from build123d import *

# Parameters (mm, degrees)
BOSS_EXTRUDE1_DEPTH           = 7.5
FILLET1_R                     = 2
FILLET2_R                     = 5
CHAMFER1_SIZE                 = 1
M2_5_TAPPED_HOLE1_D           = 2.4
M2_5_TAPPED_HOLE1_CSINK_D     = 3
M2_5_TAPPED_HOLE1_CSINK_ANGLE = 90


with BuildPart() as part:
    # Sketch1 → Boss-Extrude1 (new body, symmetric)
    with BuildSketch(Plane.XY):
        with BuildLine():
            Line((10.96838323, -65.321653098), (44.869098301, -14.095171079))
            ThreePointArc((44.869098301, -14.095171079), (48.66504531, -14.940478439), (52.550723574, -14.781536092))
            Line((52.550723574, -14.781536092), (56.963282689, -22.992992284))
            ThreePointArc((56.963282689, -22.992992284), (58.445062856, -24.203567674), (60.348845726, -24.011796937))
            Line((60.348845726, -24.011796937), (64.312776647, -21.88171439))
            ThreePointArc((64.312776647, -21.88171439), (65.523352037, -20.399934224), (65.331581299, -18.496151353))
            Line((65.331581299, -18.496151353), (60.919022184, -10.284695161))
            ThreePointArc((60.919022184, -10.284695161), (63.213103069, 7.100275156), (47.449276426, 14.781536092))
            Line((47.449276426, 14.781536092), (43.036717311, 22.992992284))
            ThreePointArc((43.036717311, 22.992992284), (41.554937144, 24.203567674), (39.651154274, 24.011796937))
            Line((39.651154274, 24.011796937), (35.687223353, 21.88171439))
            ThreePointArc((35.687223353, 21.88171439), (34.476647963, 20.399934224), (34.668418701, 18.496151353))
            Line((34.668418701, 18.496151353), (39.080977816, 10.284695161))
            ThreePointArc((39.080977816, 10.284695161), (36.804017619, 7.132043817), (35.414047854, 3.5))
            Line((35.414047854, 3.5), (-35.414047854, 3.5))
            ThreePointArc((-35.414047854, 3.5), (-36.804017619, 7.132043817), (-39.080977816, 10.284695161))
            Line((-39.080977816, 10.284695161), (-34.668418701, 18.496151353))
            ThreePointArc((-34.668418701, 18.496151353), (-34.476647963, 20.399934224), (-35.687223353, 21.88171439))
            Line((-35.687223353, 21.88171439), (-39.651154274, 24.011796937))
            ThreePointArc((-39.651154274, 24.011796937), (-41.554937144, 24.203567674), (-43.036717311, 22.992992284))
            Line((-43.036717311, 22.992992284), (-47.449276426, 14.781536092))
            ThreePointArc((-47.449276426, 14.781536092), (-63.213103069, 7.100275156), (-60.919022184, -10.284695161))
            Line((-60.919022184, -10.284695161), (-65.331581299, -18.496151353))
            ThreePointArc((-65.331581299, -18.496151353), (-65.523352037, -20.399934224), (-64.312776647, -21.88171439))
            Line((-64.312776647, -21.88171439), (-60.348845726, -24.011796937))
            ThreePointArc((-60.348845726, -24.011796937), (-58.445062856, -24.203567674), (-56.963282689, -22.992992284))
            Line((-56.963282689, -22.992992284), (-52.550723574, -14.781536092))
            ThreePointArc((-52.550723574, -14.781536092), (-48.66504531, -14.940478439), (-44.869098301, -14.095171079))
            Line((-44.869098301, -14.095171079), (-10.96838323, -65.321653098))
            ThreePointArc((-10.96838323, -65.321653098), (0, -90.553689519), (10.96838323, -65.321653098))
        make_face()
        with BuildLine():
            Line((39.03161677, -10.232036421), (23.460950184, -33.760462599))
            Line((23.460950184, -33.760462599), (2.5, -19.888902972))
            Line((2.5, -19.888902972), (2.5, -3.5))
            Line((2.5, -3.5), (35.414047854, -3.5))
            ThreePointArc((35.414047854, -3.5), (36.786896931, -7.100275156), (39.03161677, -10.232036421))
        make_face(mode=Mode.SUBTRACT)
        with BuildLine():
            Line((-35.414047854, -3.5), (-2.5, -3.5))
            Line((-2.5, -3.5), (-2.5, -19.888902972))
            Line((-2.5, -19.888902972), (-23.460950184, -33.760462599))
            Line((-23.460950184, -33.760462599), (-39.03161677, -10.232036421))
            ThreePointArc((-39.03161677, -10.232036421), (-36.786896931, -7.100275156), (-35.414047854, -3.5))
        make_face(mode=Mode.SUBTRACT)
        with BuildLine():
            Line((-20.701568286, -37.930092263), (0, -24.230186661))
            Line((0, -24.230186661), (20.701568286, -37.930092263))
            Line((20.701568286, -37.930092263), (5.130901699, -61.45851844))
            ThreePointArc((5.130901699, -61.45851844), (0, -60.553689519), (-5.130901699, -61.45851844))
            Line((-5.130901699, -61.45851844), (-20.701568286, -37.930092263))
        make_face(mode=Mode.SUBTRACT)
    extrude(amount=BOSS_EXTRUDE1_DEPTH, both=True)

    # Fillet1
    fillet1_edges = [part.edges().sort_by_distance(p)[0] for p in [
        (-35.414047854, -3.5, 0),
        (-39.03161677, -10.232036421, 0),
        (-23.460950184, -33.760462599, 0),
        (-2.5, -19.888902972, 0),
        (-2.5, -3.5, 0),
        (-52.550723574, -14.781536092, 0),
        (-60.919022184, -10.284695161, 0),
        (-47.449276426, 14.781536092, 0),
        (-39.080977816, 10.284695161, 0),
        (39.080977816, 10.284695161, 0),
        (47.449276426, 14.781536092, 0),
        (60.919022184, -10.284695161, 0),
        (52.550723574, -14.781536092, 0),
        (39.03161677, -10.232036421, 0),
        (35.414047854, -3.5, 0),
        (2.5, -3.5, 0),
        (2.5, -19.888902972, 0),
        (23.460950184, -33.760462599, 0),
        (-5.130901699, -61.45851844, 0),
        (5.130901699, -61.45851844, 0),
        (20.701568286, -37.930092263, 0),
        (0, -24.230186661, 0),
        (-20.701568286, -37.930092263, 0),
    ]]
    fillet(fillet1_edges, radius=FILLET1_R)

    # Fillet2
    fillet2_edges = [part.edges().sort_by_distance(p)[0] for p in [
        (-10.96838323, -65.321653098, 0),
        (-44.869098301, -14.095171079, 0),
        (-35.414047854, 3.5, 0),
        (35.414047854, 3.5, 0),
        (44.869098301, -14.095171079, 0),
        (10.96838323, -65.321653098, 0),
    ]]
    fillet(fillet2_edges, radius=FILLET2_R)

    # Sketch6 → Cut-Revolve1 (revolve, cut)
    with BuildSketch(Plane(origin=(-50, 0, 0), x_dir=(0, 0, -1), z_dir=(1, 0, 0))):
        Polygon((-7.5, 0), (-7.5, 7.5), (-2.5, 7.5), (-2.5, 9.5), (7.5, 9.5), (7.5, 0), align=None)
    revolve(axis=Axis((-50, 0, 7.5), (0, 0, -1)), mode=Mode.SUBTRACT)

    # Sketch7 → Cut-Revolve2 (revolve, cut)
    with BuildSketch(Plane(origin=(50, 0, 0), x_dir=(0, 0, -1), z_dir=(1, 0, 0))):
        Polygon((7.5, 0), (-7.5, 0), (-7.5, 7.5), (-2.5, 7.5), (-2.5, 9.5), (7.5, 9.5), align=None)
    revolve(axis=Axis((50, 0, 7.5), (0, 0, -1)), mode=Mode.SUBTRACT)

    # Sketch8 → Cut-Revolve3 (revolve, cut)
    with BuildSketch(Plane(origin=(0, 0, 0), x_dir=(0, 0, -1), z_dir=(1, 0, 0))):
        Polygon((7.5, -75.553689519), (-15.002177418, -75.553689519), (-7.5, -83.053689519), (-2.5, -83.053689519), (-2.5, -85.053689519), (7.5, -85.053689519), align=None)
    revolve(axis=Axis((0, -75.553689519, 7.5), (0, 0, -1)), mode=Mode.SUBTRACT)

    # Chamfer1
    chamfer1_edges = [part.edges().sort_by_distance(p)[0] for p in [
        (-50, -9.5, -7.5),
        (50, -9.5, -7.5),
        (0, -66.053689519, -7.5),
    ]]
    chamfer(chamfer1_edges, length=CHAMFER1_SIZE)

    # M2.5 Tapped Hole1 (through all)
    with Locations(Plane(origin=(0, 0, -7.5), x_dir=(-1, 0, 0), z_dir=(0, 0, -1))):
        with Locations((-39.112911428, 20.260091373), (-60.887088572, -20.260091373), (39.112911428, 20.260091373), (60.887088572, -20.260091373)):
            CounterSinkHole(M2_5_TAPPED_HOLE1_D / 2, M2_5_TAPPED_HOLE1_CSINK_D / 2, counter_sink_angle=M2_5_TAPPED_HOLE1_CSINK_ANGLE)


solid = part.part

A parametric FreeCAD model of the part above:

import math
import FreeCAD as App
import Part
import Sketcher

V = App.Vector
Q = App.Units.Quantity


def edges_at(feature, points):
    """Names of the edges that pass closest to the given points."""
    edges = feature.Shape.Edges
    near = lambda p: min(range(len(edges)), key=lambda i: edges[i].distToShape(Part.Vertex(*p))[0])
    return sorted({f"Edge{near(p) + 1}" for p in points})

doc = App.newDocument("Part")
body = doc.addObject("PartDesign::Body", "Body")

sketch1 = body.newObject("Sketcher::SketchObject", "Sketch")
sketch1.AttachmentSupport = (doc.getObject("XY_Plane"), [""])
sketch1.MapMode = "FlatFace"
sketch1.addGeometry(Part.LineSegment(V(11, -65.3, 0), V(44.9, -14.1, 0)), False)
sketch1.addGeometry(Part.ArcOfCircle(Part.Circle(V(50, 0, 0), V(0, 0, 1), 15), math.radians(-110), math.radians(-80)), False)
sketch1.addGeometry(Part.LineSegment(V(52.6, -14.8, 0), V(57, -23, 0)), False)
sketch1.addGeometry(Part.ArcOfCircle(Part.Circle(V(59.2, -21.8, 0), V(0, 0, 1), 2.5), math.radians(-152), math.radians(-62)), False)
sketch1.addGeometry(Part.LineSegment(V(60.3, -24, 0), V(64.3, -21.9, 0)), False)
sketch1.addGeometry(Part.ArcOfCircle(Part.Circle(V(63.1, -19.7, 0), V(0, 0, 1), 2.5), math.radians(-62), math.radians(28)), False)
sketch1.addGeometry(Part.LineSegment(V(65.3, -18.5, 0), V(60.9, -10.3, 0)), False)
sketch1.addGeometry(Part.ArcOfCircle(Part.Circle(V(50, 0, 0), V(0, 0, 1), 15), math.radians(-43), math.radians(100)), False)
sketch1.addGeometry(Part.LineSegment(V(47.4, 14.8, 0), V(43, 23, 0)), False)
sketch1.addGeometry(Part.ArcOfCircle(Part.Circle(V(40.8, 21.8, 0), V(0, 0, 1), 2.5), math.radians(28), math.radians(118)), False)
sketch1.addGeometry(Part.LineSegment(V(39.7, 24, 0), V(35.7, 21.9, 0)), False)
sketch1.addGeometry(Part.ArcOfCircle(Part.Circle(V(36.9, 19.7, 0), V(0, 0, 1), 2.5), math.radians(118), math.radians(208)), False)
sketch1.addGeometry(Part.LineSegment(V(34.7, 18.5, 0), V(39.1, 10.3, 0)), False)
sketch1.addGeometry(Part.ArcOfCircle(Part.Circle(V(50, 0, 0), V(0, 0, 1), 15), math.radians(137), math.radians(167)), False)
sketch1.addGeometry(Part.LineSegment(V(35.4, 3.5, 0), V(-35.4, 3.5, 0)), False)
sketch1.addGeometry(Part.ArcOfCircle(Part.Circle(V(-50, 0, 0), V(0, 0, 1), 15), math.radians(13), math.radians(43)), False)
sketch1.addGeometry(Part.LineSegment(V(-39.1, 10.3, 0), V(-34.7, 18.5, 0)), False)
sketch1.addGeometry(Part.ArcOfCircle(Part.Circle(V(-36.9, 19.7, 0), V(0, 0, 1), 2.5), math.radians(-28), math.radians(62)), False)
sketch1.addGeometry(Part.LineSegment(V(-35.7, 21.9, 0), V(-39.7, 24, 0)), False)
sketch1.addGeometry(Part.ArcOfCircle(Part.Circle(V(-40.8, 21.8, 0), V(0, 0, 1), 2.5), math.radians(62), math.radians(152)), False)
sketch1.addGeometry(Part.LineSegment(V(-43, 23, 0), V(-47.4, 14.8, 0)), False)
sketch1.addGeometry(Part.ArcOfCircle(Part.Circle(V(-50, 0, 0), V(0, 0, 1), 15), math.radians(80), math.radians(223)), False)
sketch1.addGeometry(Part.LineSegment(V(-60.9, -10.3, 0), V(-65.3, -18.5, 0)), False)
sketch1.addGeometry(Part.ArcOfCircle(Part.Circle(V(-63.1, -19.7, 0), V(0, 0, 1), 2.5), math.radians(152), math.radians(242)), False)
sketch1.addGeometry(Part.LineSegment(V(-64.3, -21.9, 0), V(-60.3, -24, 0)), False)
sketch1.addGeometry(Part.ArcOfCircle(Part.Circle(V(-59.2, -21.8, 0), V(0, 0, 1), 2.5), math.radians(-118), math.radians(-28)), False)
sketch1.addGeometry(Part.LineSegment(V(-57, -23, 0), V(-52.6, -14.8, 0)), False)
sketch1.addGeometry(Part.ArcOfCircle(Part.Circle(V(-50, 0, 0), V(0, 0, 1), 15), math.radians(-100), math.radians(-70)), False)
sketch1.addGeometry(Part.LineSegment(V(-44.9, -14.1, 0), V(-11, -65.3, 0)), False)
sketch1.addGeometry(Part.ArcOfCircle(Part.Circle(V(0, -75.6, 0), V(0, 0, 1), 15), math.radians(137), math.radians(403)), False)
sketch1.addGeometry(Part.LineSegment(V(-5.1, -61.5, 0), V(-20.7, -37.9, 0)), False)
sketch1.addGeometry(Part.LineSegment(V(-20.7, -37.9, 0), V(0, -24.2, 0)), False)
sketch1.addGeometry(Part.LineSegment(V(0, -24.2, 0), V(20.7, -37.9, 0)), False)
sketch1.addGeometry(Part.LineSegment(V(20.7, -37.9, 0), V(5.1, -61.5, 0)), False)
sketch1.addGeometry(Part.ArcOfCircle(Part.Circle(V(0, -75.6, 0), V(0, 0, 1), 15), math.radians(70), math.radians(110)), False)
sketch1.addGeometry(Part.ArcOfCircle(Part.Circle(V(-50, 0, 0), V(0, 0, 1), 15), math.radians(-43), math.radians(-13)), False)
sketch1.addGeometry(Part.LineSegment(V(-35.4, -3.5, 0), V(-2.5, -3.5, 0)), False)
sketch1.addGeometry(Part.LineSegment(V(-2.5, -3.5, 0), V(-2.5, -19.9, 0)), False)
sketch1.addGeometry(Part.LineSegment(V(-2.5, -19.9, 0), V(-23.5, -33.8, 0)), False)
sketch1.addGeometry(Part.LineSegment(V(-23.5, -33.8, 0), V(-39, -10.2, 0)), False)
sketch1.addGeometry(Part.ArcOfCircle(Part.Circle(V(50, 0, 0), V(0, 0, 1), 15), math.radians(-167), math.radians(-137)), False)
sketch1.addGeometry(Part.LineSegment(V(39, -10.2, 0), V(23.5, -33.8, 0)), False)
sketch1.addGeometry(Part.LineSegment(V(23.5, -33.8, 0), V(2.5, -19.9, 0)), False)
sketch1.addGeometry(Part.LineSegment(V(2.5, -19.9, 0), V(2.5, -3.5, 0)), False)
sketch1.addGeometry(Part.LineSegment(V(2.5, -3.5, 0), V(35.4, -3.5, 0)), False)
sketch1.addConstraint(Sketcher.Constraint("Coincident", 0, 2, 1, 1))
sketch1.addConstraint(Sketcher.Constraint("Coincident", 1, 2, 2, 1))
sketch1.addConstraint(Sketcher.Constraint("Tangent", 2, 2, 3, 1))
sketch1.addConstraint(Sketcher.Constraint("Tangent", 3, 2, 4, 1))
sketch1.addConstraint(Sketcher.Constraint("Tangent", 4, 2, 5, 1))
sketch1.addConstraint(Sketcher.Constraint("Tangent", 5, 2, 6, 1))
sketch1.addConstraint(Sketcher.Constraint("Coincident", 6, 2, 7, 1))
sketch1.addConstraint(Sketcher.Constraint("Coincident", 7, 2, 8, 1))
sketch1.addConstraint(Sketcher.Constraint("Tangent", 8, 2, 9, 1))
sketch1.addConstraint(Sketcher.Constraint("Tangent", 9, 2, 10, 1))
sketch1.addConstraint(Sketcher.Constraint("Tangent", 10, 2, 11, 1))
sketch1.addConstraint(Sketcher.Constraint("Tangent", 11, 2, 12, 1))
sketch1.addConstraint(Sketcher.Constraint("Coincident", 12, 2, 13, 1))
sketch1.addConstraint(Sketcher.Constraint("Coincident", 13, 2, 14, 1))
sketch1.addConstraint(Sketcher.Constraint("Coincident", 14, 2, 15, 1))
sketch1.addConstraint(Sketcher.Constraint("Coincident", 15, 2, 16, 1))
sketch1.addConstraint(Sketcher.Constraint("Tangent", 16, 2, 17, 1))
sketch1.addConstraint(Sketcher.Constraint("Tangent", 17, 2, 18, 1))
sketch1.addConstraint(Sketcher.Constraint("Tangent", 18, 2, 19, 1))
sketch1.addConstraint(Sketcher.Constraint("Tangent", 19, 2, 20, 1))
sketch1.addConstraint(Sketcher.Constraint("Coincident", 20, 2, 21, 1))
sketch1.addConstraint(Sketcher.Constraint("Coincident", 21, 2, 22, 1))
sketch1.addConstraint(Sketcher.Constraint("Tangent", 22, 2, 23, 1))
sketch1.addConstraint(Sketcher.Constraint("Tangent", 23, 2, 24, 1))
sketch1.addConstraint(Sketcher.Constraint("Tangent", 24, 2, 25, 1))
sketch1.addConstraint(Sketcher.Constraint("Tangent", 25, 2, 26, 1))
sketch1.addConstraint(Sketcher.Constraint("Coincident", 26, 2, 27, 1))
sketch1.addConstraint(Sketcher.Constraint("Coincident", 27, 2, 28, 1))
sketch1.addConstraint(Sketcher.Constraint("Coincident", 28, 2, 29, 1))
sketch1.addConstraint(Sketcher.Constraint("Coincident", 29, 2, 0, 1))
sketch1.addConstraint(Sketcher.Constraint("Coincident", 30, 2, 31, 1))
sketch1.addConstraint(Sketcher.Constraint("Coincident", 31, 2, 32, 1))
sketch1.addConstraint(Sketcher.Constraint("Coincident", 32, 2, 33, 1))
sketch1.addConstraint(Sketcher.Constraint("Coincident", 33, 2, 34, 1))
sketch1.addConstraint(Sketcher.Constraint("Coincident", 34, 2, 30, 1))
sketch1.addConstraint(Sketcher.Constraint("Coincident", 35, 2, 36, 1))
sketch1.addConstraint(Sketcher.Constraint("Coincident", 36, 2, 37, 1))
sketch1.addConstraint(Sketcher.Constraint("Coincident", 37, 2, 38, 1))
sketch1.addConstraint(Sketcher.Constraint("Coincident", 38, 2, 39, 1))
sketch1.addConstraint(Sketcher.Constraint("Coincident", 39, 2, 35, 1))
sketch1.addConstraint(Sketcher.Constraint("Coincident", 40, 2, 41, 1))
sketch1.addConstraint(Sketcher.Constraint("Coincident", 41, 2, 42, 1))
sketch1.addConstraint(Sketcher.Constraint("Coincident", 42, 2, 43, 1))
sketch1.addConstraint(Sketcher.Constraint("Coincident", 43, 2, 44, 1))
sketch1.addConstraint(Sketcher.Constraint("Coincident", 44, 2, 40, 1))
sketch1.addConstraint(Sketcher.Constraint("Horizontal", 14))
sketch1.addConstraint(Sketcher.Constraint("Horizontal", 36))
sketch1.addConstraint(Sketcher.Constraint("Vertical", 37))
sketch1.addConstraint(Sketcher.Constraint("Vertical", 43))
sketch1.addConstraint(Sketcher.Constraint("Horizontal", 44))
sketch1.addConstraint(Sketcher.Constraint("Coincident", 7, 3, 1, 3))
sketch1.addConstraint(Sketcher.Constraint("Coincident", 13, 3, 1, 3))
sketch1.addConstraint(Sketcher.Constraint("Coincident", 21, 3, 15, 3))
sketch1.addConstraint(Sketcher.Constraint("Coincident", 27, 3, 15, 3))
sketch1.addConstraint(Sketcher.Constraint("Coincident", 34, 3, 29, 3))
sketch1.addConstraint(Sketcher.Constraint("Coincident", 35, 3, 15, 3))
sketch1.addConstraint(Sketcher.Constraint("Coincident", 40, 3, 1, 3))
sketch1.addConstraint(Sketcher.Constraint("Equal", 3, 5))
sketch1.addConstraint(Sketcher.Constraint("Equal", 1, 7))
sketch1.addConstraint(Sketcher.Constraint("Equal", 5, 9))
sketch1.addConstraint(Sketcher.Constraint("Equal", 9, 11))
sketch1.addConstraint(Sketcher.Constraint("Equal", 7, 13))
sketch1.addConstraint(Sketcher.Constraint("Equal", 13, 15))
sketch1.addConstraint(Sketcher.Constraint("Equal", 11, 17))
sketch1.addConstraint(Sketcher.Constraint("Equal", 17, 19))
sketch1.addConstraint(Sketcher.Constraint("Equal", 15, 21))
sketch1.addConstraint(Sketcher.Constraint("Equal", 19, 23))
sketch1.addConstraint(Sketcher.Constraint("Equal", 23, 25))
sketch1.addConstraint(Sketcher.Constraint("Equal", 21, 27))
sketch1.addConstraint(Sketcher.Constraint("Equal", 27, 29))
sketch1.addConstraint(Sketcher.Constraint("Equal", 29, 34))
sketch1.addConstraint(Sketcher.Constraint("Equal", 34, 35))
sketch1.addConstraint(Sketcher.Constraint("Equal", 35, 40))
sketch1.addConstraint(Sketcher.Constraint("Symmetric", 1, 3, 15, 3, -1, 1))
sketch1.addConstraint(Sketcher.Constraint("Symmetric", 11, 3, 17, 3, -2))
sketch1.addConstraint(Sketcher.Constraint("Symmetric", 9, 3, 19, 3, -2))
sketch1.addConstraint(Sketcher.Constraint("Symmetric", 5, 3, 23, 3, -2))
sketch1.addConstraint(Sketcher.Constraint("Symmetric", 3, 3, 25, 3, -2))
sketch1.addConstraint(Sketcher.Constraint("Symmetric", 12, 2, 15, 2, -2))
sketch1.addConstraint(Sketcher.Constraint("Symmetric", 28, 2, 29, 2, -2))
sketch1.addConstraint(Sketcher.Constraint("Symmetric", 30, 2, 32, 2, -2))
sketch1.addConstraint(Sketcher.Constraint("Symmetric", 38, 2, 41, 2, -2))
sketch1.addConstraint(Sketcher.Constraint("Symmetric", 37, 2, 42, 2, -2))
sketch1.addConstraint(Sketcher.Constraint("PointOnObject", 31, 2, -2))
sketch1.addConstraint(Sketcher.Constraint("Perpendicular", 2, 4))
sketch1.addConstraint(Sketcher.Constraint("Perpendicular", 4, 6))
sketch1.addConstraint(Sketcher.Constraint("Parallel", 6, 8))
sketch1.addConstraint(Sketcher.Constraint("Perpendicular", 8, 10))
sketch1.addConstraint(Sketcher.Constraint("Perpendicular", 10, 12))
sketch1.addConstraint(Sketcher.Constraint("Perpendicular", 18, 20))
sketch1.addConstraint(Sketcher.Constraint("Parallel", 20, 22))
sketch1.addConstraint(Sketcher.Constraint("Perpendicular", 24, 26))
sketch1.addConstraint(Sketcher.Constraint("Parallel", 28, 30))
sketch1.addConstraint(Sketcher.Constraint("Perpendicular", 30, 31))
sketch1.addConstraint(Sketcher.Constraint("Perpendicular", 0, 32))
sketch1.addConstraint(Sketcher.Constraint("Perpendicular", 32, 33))
sketch1.addConstraint(Sketcher.Constraint("Parallel", 31, 38))
sketch1.addConstraint(Sketcher.Constraint("Perpendicular", 38, 39))
sketch1.addConstraint(Sketcher.Constraint("Parallel", 33, 41))
sketch1.addConstraint(Sketcher.Constraint("Horizontal", 36, 2, 43, 2))
sketch1.addConstraint(Sketcher.Constraint("Vertical", 14, 2, 35, 2))
sketch1.addConstraint(Sketcher.Constraint("Equal", 2, 6))
sketch1.addConstraint(Sketcher.Constraint("Equal", 6, 8))
sketch1.addConstraint(Sketcher.Constraint("Equal", 4, 10))
sketch1.addConstraint(Sketcher.Constraint("Equal", 8, 12))
sketch1.addConstraint(Sketcher.Constraint("Equal", 33, 39))
sketch1.addConstraint(Sketcher.Constraint("Radius", 1, Q("15 mm")))
sketch1.addConstraint(Sketcher.Constraint("Radius", 3, Q("2.5 mm")))
sketch1.addConstraint(Sketcher.Constraint("DistanceX", -1, 1, 1, 3, Q("50 mm")))
sketch1.addConstraint(Sketcher.Constraint("Distance", 4, Q("4.5 mm")))
sketch1.addConstraint(Sketcher.Constraint("DistanceY", -1, 1, 13, 2, Q("3.5 mm")))
sketch1.addConstraint(Sketcher.Constraint("DistanceX", 36, 2, -1, 1, Q("2.5 mm")))
sketch1.addConstraint(Sketcher.Constraint("DistanceX", -1, 1, 0, 2, Q("44.869098 mm")))
sketch1.addConstraint(Sketcher.Constraint("DistanceX", -1, 1, 33, 2, Q("5.130902 mm")))
sketch1.addConstraint(Sketcher.Constraint("Distance", 31, Q("24.824229 mm")))
sketch1.addConstraint(Sketcher.Constraint("DistanceY", 37, 2, 37, 1, Q("16.388903 mm")))
sketch1.addConstraint(Sketcher.Constraint("DistanceY", 5, 3, -1, 1, Q("19.679531 mm")))
sketch1.addConstraint(Sketcher.Constraint("DistanceY", 29, 3, -1, 1, Q("75.55369 mm")))
sketch1.addConstraint(Sketcher.Constraint("DistanceX", -1, 1, 5, 2, Q("65.331581 mm")))
sketch1.addConstraint(Sketcher.Constraint("DistanceX", 30, 2, -1, 1, Q("20.701568 mm")))
pad1 = body.newObject("PartDesign::Pad", "Pad")
pad1.Profile = sketch1
pad1.Length = 15
pad1.Midplane = True
doc.recompute()

fillet = body.newObject("PartDesign::Fillet", "Fillet")
fillet.Base = (pad1, edges_at(pad1, [
    (-35.414, -3.5, 0),
    (-39.032, -10.232, 0),
    (-23.461, -33.76, 0),
    (-2.5, -19.889, 0),
    (-2.5, -3.5, 0),
    (-52.551, -14.782, 0),
    (-60.919, -10.285, 0),
    (-47.449, 14.782, 0),
    (-39.081, 10.285, 0),
    (39.081, 10.285, 0),
    (47.449, 14.782, 0),
    (60.919, -10.285, 0),
    (52.551, -14.782, 0),
    (39.032, -10.232, 0),
    (35.414, -3.5, 0),
    (2.5, -3.5, 0),
    (2.5, -19.889, 0),
    (23.461, -33.76, 0),
    (-5.131, -61.459, 0),
    (5.131, -61.459, 0),
    (20.702, -37.93, 0),
    (0, -24.23, 0),
    (-20.702, -37.93, 0),
]))
fillet.Radius = 2
doc.recompute()

fillet2 = body.newObject("PartDesign::Fillet", "Fillet001")
fillet2.Base = (fillet, edges_at(fillet, [
    (-10.968, -65.322, 0),
    (-44.869, -14.095, 0),
    (-35.414, 3.5, 0),
    (35.414, 3.5, 0),
    (44.869, -14.095, 0),
    (10.968, -65.322, 0),
]))
fillet2.Radius = 5

sketch2 = body.newObject("Sketcher::SketchObject", "Sketch001")
sketch2.AttachmentSupport = (doc.getObject("YZ_Plane"), [""])
sketch2.MapMode = "FlatFace"
sketch2.AttachmentOffset = App.Placement(V(0, 0, -50), App.Rotation())
sketch2.addGeometry(Part.LineSegment(V(7.5, 7.5, 0), V(0, 7.5, 0)), False)
sketch2.addGeometry(Part.LineSegment(V(0, 7.5, 0), V(0, -7.5, 0)), False)
sketch2.addGeometry(Part.LineSegment(V(0, -7.5, 0), V(9.5, -7.5, 0)), False)
sketch2.addGeometry(Part.LineSegment(V(9.5, -7.5, 0), V(9.5, 2.5, 0)), False)
sketch2.addGeometry(Part.LineSegment(V(9.5, 2.5, 0), V(7.5, 2.5, 0)), False)
sketch2.addGeometry(Part.LineSegment(V(7.5, 2.5, 0), V(7.5, 7.5, 0)), False)
sketch2.addConstraint(Sketcher.Constraint("Coincident", 0, 2, 1, 1))
sketch2.addConstraint(Sketcher.Constraint("Coincident", 1, 2, 2, 1))
sketch2.addConstraint(Sketcher.Constraint("Coincident", 2, 2, 3, 1))
sketch2.addConstraint(Sketcher.Constraint("Coincident", 3, 2, 4, 1))
sketch2.addConstraint(Sketcher.Constraint("Coincident", 4, 2, 5, 1))
sketch2.addConstraint(Sketcher.Constraint("Coincident", 5, 2, 0, 1))
sketch2.addConstraint(Sketcher.Constraint("Horizontal", 0))
sketch2.addConstraint(Sketcher.Constraint("Vertical", 1))
sketch2.addConstraint(Sketcher.Constraint("Horizontal", 2))
sketch2.addConstraint(Sketcher.Constraint("Vertical", 3))
sketch2.addConstraint(Sketcher.Constraint("Horizontal", 4))
sketch2.addConstraint(Sketcher.Constraint("Vertical", 5))
sketch2.addConstraint(Sketcher.Constraint("Symmetric", 0, 2, 1, 2, -1, 1))
sketch2.addConstraint(Sketcher.Constraint("DistanceX", 4, 2, 4, 1, Q("2 mm")))
sketch2.addConstraint(Sketcher.Constraint("DistanceY", 1, 2, 1, 1, Q("15 mm")))
sketch2.addConstraint(Sketcher.Constraint("DistanceY", 3, 1, 3, 2, Q("10 mm")))
sketch2.addConstraint(Sketcher.Constraint("DistanceX", 0, 2, 0, 1, Q("7.5 mm")))
groove = body.newObject("PartDesign::Groove", "Groove")
groove.Profile = sketch2
groove.ReferenceAxis = (sketch2, ["V_Axis"])
groove.Angle = 360

sketch3 = body.newObject("Sketcher::SketchObject", "Sketch002")
sketch3.AttachmentSupport = (doc.getObject("YZ_Plane"), [""])
sketch3.MapMode = "FlatFace"
sketch3.AttachmentOffset = App.Placement(V(0, 0, 50), App.Rotation())
sketch3.addGeometry(Part.LineSegment(V(0, 7.5, 0), V(0, -7.5, 0)), False)
sketch3.addGeometry(Part.LineSegment(V(0, -7.5, 0), V(9.5, -7.5, 0)), False)
sketch3.addGeometry(Part.LineSegment(V(9.5, -7.5, 0), V(9.5, 2.5, 0)), False)
sketch3.addGeometry(Part.LineSegment(V(9.5, 2.5, 0), V(7.5, 2.5, 0)), False)
sketch3.addGeometry(Part.LineSegment(V(7.5, 2.5, 0), V(7.5, 7.5, 0)), False)
sketch3.addGeometry(Part.LineSegment(V(7.5, 7.5, 0), V(0, 7.5, 0)), False)
sketch3.addConstraint(Sketcher.Constraint("Coincident", 0, 2, 1, 1))
sketch3.addConstraint(Sketcher.Constraint("Coincident", 1, 2, 2, 1))
sketch3.addConstraint(Sketcher.Constraint("Coincident", 2, 2, 3, 1))
sketch3.addConstraint(Sketcher.Constraint("Coincident", 3, 2, 4, 1))
sketch3.addConstraint(Sketcher.Constraint("Coincident", 4, 2, 5, 1))
sketch3.addConstraint(Sketcher.Constraint("Coincident", 5, 2, 0, 1))
sketch3.addConstraint(Sketcher.Constraint("Vertical", 0))
sketch3.addConstraint(Sketcher.Constraint("Horizontal", 1))
sketch3.addConstraint(Sketcher.Constraint("Vertical", 2))
sketch3.addConstraint(Sketcher.Constraint("Horizontal", 3))
sketch3.addConstraint(Sketcher.Constraint("Vertical", 4))
sketch3.addConstraint(Sketcher.Constraint("Horizontal", 5))
sketch3.addConstraint(Sketcher.Constraint("Symmetric", 0, 2, 5, 2, -1, 1))
sketch3.addConstraint(Sketcher.Constraint("DistanceX", 3, 2, 3, 1, Q("2 mm")))
sketch3.addConstraint(Sketcher.Constraint("DistanceY", 0, 2, 0, 1, Q("15 mm")))
sketch3.addConstraint(Sketcher.Constraint("DistanceY", 2, 1, 2, 2, Q("10 mm")))
sketch3.addConstraint(Sketcher.Constraint("DistanceX", 1, 1, 1, 2, Q("9.5 mm")))
groove2 = body.newObject("PartDesign::Groove", "Groove001")
groove2.Profile = sketch3
groove2.ReferenceAxis = (sketch3, ["V_Axis"])
groove2.Angle = 360

sketch4 = body.newObject("Sketcher::SketchObject", "Sketch003")
sketch4.AttachmentSupport = (doc.getObject("YZ_Plane"), [""])
sketch4.MapMode = "FlatFace"
sketch4.addGeometry(Part.LineSegment(V(-75.6, -7.5, 0), V(-75.6, 15, 0)), False)
sketch4.addGeometry(Part.LineSegment(V(-75.6, 15, 0), V(-83.1, 7.5, 0)), False)
sketch4.addGeometry(Part.LineSegment(V(-83.1, 7.5, 0), V(-83.1, 2.5, 0)), False)
sketch4.addGeometry(Part.LineSegment(V(-83.1, 2.5, 0), V(-85.1, 2.5, 0)), False)
sketch4.addGeometry(Part.LineSegment(V(-85.1, 2.5, 0), V(-85.1, -7.5, 0)), False)
sketch4.addGeometry(Part.LineSegment(V(-85.1, -7.5, 0), V(-75.6, -7.5, 0)), False)
sketch4.addGeometry(Part.LineSegment(V(-75.6, 15, 0), V(-75.6, -7.5, 0)), True)
sketch4.addConstraint(Sketcher.Constraint("Coincident", 0, 2, 1, 1))
sketch4.addConstraint(Sketcher.Constraint("Coincident", 1, 2, 2, 1))
sketch4.addConstraint(Sketcher.Constraint("Coincident", 2, 2, 3, 1))
sketch4.addConstraint(Sketcher.Constraint("Coincident", 3, 2, 4, 1))
sketch4.addConstraint(Sketcher.Constraint("Coincident", 4, 2, 5, 1))
sketch4.addConstraint(Sketcher.Constraint("Coincident", 5, 2, 0, 1))
sketch4.addConstraint(Sketcher.Constraint("Vertical", 0))
sketch4.addConstraint(Sketcher.Constraint("Vertical", 2))
sketch4.addConstraint(Sketcher.Constraint("Horizontal", 3))
sketch4.addConstraint(Sketcher.Constraint("Vertical", 4))
sketch4.addConstraint(Sketcher.Constraint("Horizontal", 5))
sketch4.addConstraint(Sketcher.Constraint("Vertical", 6))
sketch4.addConstraint(Sketcher.Constraint("Coincident", 6, 1, 0, 2))
sketch4.addConstraint(Sketcher.Constraint("Horizontal", 4, 2, 6, 2))
sketch4.addConstraint(Sketcher.Constraint("DistanceX", 3, 2, 3, 1, Q("2 mm")))
sketch4.addConstraint(Sketcher.Constraint("DistanceY", 2, 2, 2, 1, Q("5 mm")))
sketch4.addConstraint(Sketcher.Constraint("DistanceY", 4, 2, 4, 1, Q("10 mm")))
sketch4.addConstraint(Sketcher.Constraint("DistanceX", 5, 1, 5, 2, Q("9.5 mm")))
sketch4.addConstraint(Sketcher.Constraint("DistanceY", -1, 1, 1, 2, Q("7.5 mm")))
sketch4.addConstraint(Sketcher.Constraint("Distance", 1, Q("10.608141 mm")))
sketch4.addConstraint(Sketcher.Constraint("DistanceX", 0, 2, -1, 1, Q("75.55369 mm")))
groove3 = body.newObject("PartDesign::Groove", "Groove002")
groove3.Profile = sketch4
groove3.ReferenceAxis = (sketch4, ["Axis0"])
groove3.Angle = 360
doc.recompute()

chamfer = body.newObject("PartDesign::Chamfer", "Chamfer")
chamfer.Base = (groove3, edges_at(groove3, [(-50, -9.5, -7.5), (50, -9.5, -7.5), (0, -66.054, -7.5)]))
chamfer.Size = 1

sketch5 = body.newObject("Sketcher::SketchObject", "Sketch004")
sketch5.AttachmentSupport = (doc.getObject("XY_Plane"), [""])
sketch5.MapMode = "FlatFace"
sketch5.AttachmentOffset = App.Placement(V(0, 0, -7.5), App.Rotation())
sketch5.addGeometry(Part.Circle(V(39.1, 20.3, 0), V(0, 0, 1), 1.2), False)
sketch5.addGeometry(Part.Circle(V(60.9, -20.3, 0), V(0, 0, 1), 1.2), False)
sketch5.addGeometry(Part.Circle(V(-39.1, 20.3, 0), V(0, 0, 1), 1.2), False)
sketch5.addGeometry(Part.Circle(V(-60.9, -20.3, 0), V(0, 0, 1), 1.2), False)
sketch5.addConstraint(Sketcher.Constraint("Equal", 0, 1))
sketch5.addConstraint(Sketcher.Constraint("Equal", 1, 2))
sketch5.addConstraint(Sketcher.Constraint("Equal", 2, 3))
sketch5.addConstraint(Sketcher.Constraint("Symmetric", 0, 3, 2, 3, -2))
sketch5.addConstraint(Sketcher.Constraint("Symmetric", 1, 3, 3, 3, -2))
sketch5.addConstraint(Sketcher.Constraint("Diameter", 0, Q("2.4 mm")))
sketch5.addConstraint(Sketcher.Constraint("DistanceX", 2, 3, 1, 3, Q("100 mm")))
sketch5.addConstraint(Sketcher.Constraint("DistanceX", -1, 1, 0, 3, Q("39.112911 mm")))
sketch5.addConstraint(Sketcher.Constraint("DistanceY", -1, 1, 0, 3, Q("20.260091 mm")))
sketch5.addConstraint(Sketcher.Constraint("DistanceY", 1, 3, -1, 1, Q("20.260091 mm")))
doc.recompute()
hole = body.newObject("PartDesign::Hole", "Hole")
hole.Profile = sketch5
hole.ThreadType = "None"
hole.Diameter = 2.4
hole.DepthType = "ThroughAll"
hole.HoleCutType = "Countersink"
hole.HoleCutDiameter = 3
hole.HoleCutCountersinkAngle = 90
hole.Reversed = True

doc.recompute()
